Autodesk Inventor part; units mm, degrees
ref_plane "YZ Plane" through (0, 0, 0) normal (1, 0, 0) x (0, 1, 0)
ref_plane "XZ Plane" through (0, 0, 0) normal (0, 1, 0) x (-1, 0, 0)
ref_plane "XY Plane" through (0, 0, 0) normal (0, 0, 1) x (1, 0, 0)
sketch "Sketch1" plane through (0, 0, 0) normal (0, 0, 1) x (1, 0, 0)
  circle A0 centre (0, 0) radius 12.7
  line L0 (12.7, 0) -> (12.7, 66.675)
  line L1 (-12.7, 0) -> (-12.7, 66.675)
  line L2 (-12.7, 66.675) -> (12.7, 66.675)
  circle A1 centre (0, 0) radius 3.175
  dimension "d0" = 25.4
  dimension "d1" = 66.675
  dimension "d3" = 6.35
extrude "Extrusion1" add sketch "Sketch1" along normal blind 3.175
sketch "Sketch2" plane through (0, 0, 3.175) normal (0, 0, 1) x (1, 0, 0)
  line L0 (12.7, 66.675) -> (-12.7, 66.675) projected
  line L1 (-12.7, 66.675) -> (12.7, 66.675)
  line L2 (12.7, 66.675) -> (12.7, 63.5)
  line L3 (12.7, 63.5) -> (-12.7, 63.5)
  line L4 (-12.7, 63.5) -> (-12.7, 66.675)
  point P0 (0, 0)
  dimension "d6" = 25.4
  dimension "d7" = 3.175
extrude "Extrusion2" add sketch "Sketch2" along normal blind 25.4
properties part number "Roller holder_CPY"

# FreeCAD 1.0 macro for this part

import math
import FreeCAD as App
import Part
import Sketcher

V = App.Vector
Q = App.Units.Quantity


def add_polygon(sketch, points):
    """Adds a closed chain of lines whose ends are joined by coincident constraints."""
    first, n = sketch.GeometryCount, len(points)
    for a, b in zip(points, points[1:] + points[:1]):
        sketch.addGeometry(Part.LineSegment(App.Vector(*a, 0), App.Vector(*b, 0)), False)
    for i in range(n):
        sketch.addConstraint(Sketcher.Constraint("Coincident", first + i, 2, first + (i + 1) % n, 1))

doc = App.newDocument("Part")
body = doc.addObject("PartDesign::Body", "Body")

sketch1 = body.newObject("Sketcher::SketchObject", "Sketch")
sketch1.AttachmentSupport = (doc.getObject("XY_Plane"), [""])
sketch1.MapMode = "FlatFace"
sketch1.addGeometry(Part.ArcOfCircle(Part.Circle(V(0, 0, 0), V(0, 0, 1), 12.7), math.radians(180), math.radians(360)), False)
sketch1.addGeometry(Part.LineSegment(V(12.7, 0, 0), V(12.7, 66.7, 0)), False)
sketch1.addGeometry(Part.LineSegment(V(12.7, 66.7, 0), V(-12.7, 66.7, 0)), False)
sketch1.addGeometry(Part.LineSegment(V(-12.7, 66.7, 0), V(-12.7, 0, 0)), False)
sketch1.addGeometry(Part.Circle(V(0, 0, 0), V(0, 0, 1), 3.2), False)
sketch1.addConstraint(Sketcher.Constraint("Tangent", 0, 2, 1, 1))
sketch1.addConstraint(Sketcher.Constraint("Coincident", 1, 2, 2, 1))
sketch1.addConstraint(Sketcher.Constraint("Coincident", 2, 2, 3, 1))
sketch1.addConstraint(Sketcher.Constraint("Tangent", 3, 2, 0, 1))
sketch1.addConstraint(Sketcher.Constraint("Vertical", 1))
sketch1.addConstraint(Sketcher.Constraint("Horizontal", 2))
sketch1.addConstraint(Sketcher.Constraint("Vertical", 3))
sketch1.addConstraint(Sketcher.Constraint("Coincident", 0, 3, -1, 1))
sketch1.addConstraint(Sketcher.Constraint("Coincident", 4, 3, -1, 1))
sketch1.addConstraint(Sketcher.Constraint("Radius", 0, Q("0.5 in")))
sketch1.addConstraint(Sketcher.Constraint("Diameter", 4, Q("0.25 in")))
sketch1.addConstraint(Sketcher.Constraint("DistanceY", 1, 1, 1, 2, Q("2.625 in")))
pad1 = body.newObject("PartDesign::Pad", "Pad")
pad1.Profile = sketch1
pad1.Length = Q("0.125 in")

sketch2 = body.newObject("Sketcher::SketchObject", "Sketch001")
sketch2.AttachmentSupport = (doc.getObject("XY_Plane"), [""])
sketch2.MapMode = "FlatFace"
sketch2.AttachmentOffset = App.Placement(V(0, 0, 0.125 * 25.4), App.Rotation())
add_polygon(sketch2, [(12.7, 63.5), (12.7, 66.7), (-12.7, 66.7), (-12.7, 63.5)])
sketch2.addConstraint(Sketcher.Constraint("Vertical", 0))
sketch2.addConstraint(Sketcher.Constraint("Horizontal", 1))
sketch2.addConstraint(Sketcher.Constraint("Vertical", 2))
sketch2.addConstraint(Sketcher.Constraint("Horizontal", 3))
sketch2.addConstraint(Sketcher.Constraint("DistanceX", 1, 2, 1, 1, Q("1 in")))
sketch2.addConstraint(Sketcher.Constraint("DistanceY", 0, 1, 0, 2, Q("0.125 in")))
sketch2.addConstraint(Sketcher.Constraint("DistanceX", -1, 1, 0, 2, Q("0.5 in")))
sketch2.addConstraint(Sketcher.Constraint("DistanceY", -1, 1, 2, 2, Q("2.5 in")))
pad2 = body.newObject("PartDesign::Pad", "Pad001")
pad2.Profile = sketch2
pad2.Length = Q("1 in")

doc.recompute()
